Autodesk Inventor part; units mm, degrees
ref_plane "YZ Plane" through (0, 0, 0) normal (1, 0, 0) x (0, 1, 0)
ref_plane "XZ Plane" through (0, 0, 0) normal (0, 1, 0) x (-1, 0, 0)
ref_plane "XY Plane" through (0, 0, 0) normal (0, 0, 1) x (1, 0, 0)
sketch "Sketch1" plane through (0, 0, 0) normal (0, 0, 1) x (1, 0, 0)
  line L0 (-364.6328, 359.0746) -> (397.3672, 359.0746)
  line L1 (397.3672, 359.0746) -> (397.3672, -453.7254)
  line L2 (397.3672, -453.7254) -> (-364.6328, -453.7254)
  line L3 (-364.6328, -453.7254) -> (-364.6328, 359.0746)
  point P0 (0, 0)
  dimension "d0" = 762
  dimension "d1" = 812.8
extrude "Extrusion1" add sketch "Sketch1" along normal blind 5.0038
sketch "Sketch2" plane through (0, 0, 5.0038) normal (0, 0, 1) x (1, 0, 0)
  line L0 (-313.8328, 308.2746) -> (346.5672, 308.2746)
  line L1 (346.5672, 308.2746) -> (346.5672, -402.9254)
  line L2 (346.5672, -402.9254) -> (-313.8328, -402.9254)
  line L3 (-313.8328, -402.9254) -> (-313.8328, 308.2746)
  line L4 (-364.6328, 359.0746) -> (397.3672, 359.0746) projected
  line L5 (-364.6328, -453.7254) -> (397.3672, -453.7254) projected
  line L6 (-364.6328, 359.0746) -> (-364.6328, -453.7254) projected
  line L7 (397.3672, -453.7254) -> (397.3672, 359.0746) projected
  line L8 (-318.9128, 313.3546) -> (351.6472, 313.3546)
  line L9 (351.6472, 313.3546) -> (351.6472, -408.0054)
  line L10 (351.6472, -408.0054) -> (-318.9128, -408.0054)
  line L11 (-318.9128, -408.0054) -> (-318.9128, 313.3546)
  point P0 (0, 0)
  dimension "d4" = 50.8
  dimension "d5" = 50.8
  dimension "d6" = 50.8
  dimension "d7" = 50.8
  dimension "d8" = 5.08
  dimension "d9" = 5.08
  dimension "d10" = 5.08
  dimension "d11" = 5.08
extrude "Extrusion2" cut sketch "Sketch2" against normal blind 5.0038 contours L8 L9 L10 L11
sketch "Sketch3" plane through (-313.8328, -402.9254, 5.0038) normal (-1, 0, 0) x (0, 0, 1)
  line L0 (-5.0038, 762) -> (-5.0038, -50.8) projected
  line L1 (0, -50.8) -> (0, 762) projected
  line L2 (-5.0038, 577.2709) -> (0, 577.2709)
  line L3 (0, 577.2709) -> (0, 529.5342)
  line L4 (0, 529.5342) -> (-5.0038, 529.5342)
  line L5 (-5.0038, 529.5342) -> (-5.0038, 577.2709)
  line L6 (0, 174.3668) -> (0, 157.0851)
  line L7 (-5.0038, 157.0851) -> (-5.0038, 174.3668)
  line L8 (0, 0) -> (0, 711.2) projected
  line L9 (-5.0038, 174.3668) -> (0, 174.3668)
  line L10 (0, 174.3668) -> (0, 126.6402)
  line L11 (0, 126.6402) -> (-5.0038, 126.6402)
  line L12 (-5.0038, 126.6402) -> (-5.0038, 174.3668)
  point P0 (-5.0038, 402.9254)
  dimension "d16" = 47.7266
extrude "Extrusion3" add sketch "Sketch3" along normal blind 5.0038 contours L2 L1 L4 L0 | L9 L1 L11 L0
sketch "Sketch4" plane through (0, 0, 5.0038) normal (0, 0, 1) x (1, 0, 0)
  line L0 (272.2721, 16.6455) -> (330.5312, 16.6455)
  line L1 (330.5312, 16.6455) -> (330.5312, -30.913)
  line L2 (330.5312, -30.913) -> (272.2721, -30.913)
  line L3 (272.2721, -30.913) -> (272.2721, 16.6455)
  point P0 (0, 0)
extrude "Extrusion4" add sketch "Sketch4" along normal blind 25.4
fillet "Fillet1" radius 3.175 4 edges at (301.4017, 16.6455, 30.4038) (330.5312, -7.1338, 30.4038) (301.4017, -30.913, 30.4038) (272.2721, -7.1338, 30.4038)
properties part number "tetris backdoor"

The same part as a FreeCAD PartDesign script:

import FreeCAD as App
import Part
import Sketcher
from FreeCAD import Vector
Q = App.Units.Quantity


def edges_at(feature, points):
    """Names of the edges that pass closest to the given points."""
    edges = feature.Shape.Edges
    near = lambda p: min(range(len(edges)), key=lambda i: edges[i].distToShape(Part.Vertex(*p))[0])
    return sorted({f"Edge{near(p) + 1}" for p in points})

doc = App.newDocument("Part")
body = doc.addObject("PartDesign::Body", "Body")
body.AllowCompound = True

sketch1 = body.newObject("Sketcher::SketchObject", "Sketch")
sketch1.AttachmentSupport = (doc.getObject("XY_Plane"), [""])
sketch1.MapMode = "FlatFace"
sketch1.addGeometry([
    Part.LineSegment(Vector(397, 359, 0), Vector(-365, 359, 0)),
    Part.LineSegment(Vector(-365, 359, 0), Vector(-365, -454, 0)),
    Part.LineSegment(Vector(-365, -454, 0), Vector(397, -454, 0)),
    Part.LineSegment(Vector(397, -454, 0), Vector(397, 359, 0)),
], False)
sketch1.addConstraint([
    Sketcher.Constraint("Coincident", 0, 2, 1, 1),
    Sketcher.Constraint("Coincident", 1, 2, 2, 1),
    Sketcher.Constraint("Coincident", 2, 2, 3, 1),
    Sketcher.Constraint("Coincident", 3, 2, 0, 1),
    Sketcher.Constraint("Horizontal", 0),
    Sketcher.Constraint("Vertical", 1),
    Sketcher.Constraint("Horizontal", 2),
    Sketcher.Constraint("Vertical", 3),
    Sketcher.Constraint("DistanceX", 0, 2, 0, 1, Q("30 in")),
    Sketcher.Constraint("DistanceY", 1, 2, 1, 1, Q("32 in")),
    Sketcher.Constraint("DistanceY", -1, 1, 0, 2, Q("14.1368 in")),
    Sketcher.Constraint("DistanceX", 0, 2, -1, 1, 364.6328),
])
pad1 = body.newObject("PartDesign::Pad", "Pad")
pad1.Profile = sketch1
pad1.Length = Q("0.197 in")

sketch2 = body.newObject("Sketcher::SketchObject", "Sketch001")
sketch2.AttachmentSupport = (doc.getObject("XY_Plane"), [""])
sketch2.MapMode = "FlatFace"
sketch2.AttachmentOffset = App.Placement(Vector(0, 0, 0.197 * 25.4), App.Rotation())
sketch2.addGeometry([
    Part.LineSegment(Vector(352, 313, 0), Vector(-319, 313, 0)),
    Part.LineSegment(Vector(-319, 313, 0), Vector(-319, -408, 0)),
    Part.LineSegment(Vector(-319, -408, 0), Vector(352, -408, 0)),
    Part.LineSegment(Vector(352, -408, 0), Vector(352, 313, 0)),
    Part.LineSegment(Vector(-314, -403, 0), Vector(-314, 308, 0)),
    Part.LineSegment(Vector(-314, 308, 0), Vector(347, 308, 0)),
    Part.LineSegment(Vector(347, 308, 0), Vector(347, -403, 0)),
    Part.LineSegment(Vector(347, -403, 0), Vector(-314, -403, 0)),
], False)
sketch2.addConstraint([
    Sketcher.Constraint("Coincident", 0, 2, 1, 1),
    Sketcher.Constraint("Coincident", 1, 2, 2, 1),
    Sketcher.Constraint("Coincident", 2, 2, 3, 1),
    Sketcher.Constraint("Coincident", 3, 2, 0, 1),
    Sketcher.Constraint("Coincident", 4, 2, 5, 1),
    Sketcher.Constraint("Coincident", 5, 2, 6, 1),
    Sketcher.Constraint("Coincident", 6, 2, 7, 1),
    Sketcher.Constraint("Coincident", 7, 2, 4, 1),
    Sketcher.Constraint("Horizontal", 0),
    Sketcher.Constraint("Vertical", 1),
    Sketcher.Constraint("Horizontal", 2),
    Sketcher.Constraint("Vertical", 3),
    Sketcher.Constraint("Vertical", 4),
    Sketcher.Constraint("Horizontal", 5),
    Sketcher.Constraint("Vertical", 6),
    Sketcher.Constraint("Horizontal", 7),
    Sketcher.Constraint("DistanceX", 0, 2, 4, 2, Q("0.2 in")),
    Sketcher.Constraint("DistanceY", 4, 2, 0, 2, Q("0.2 in")),
    Sketcher.Constraint("DistanceX", 5, 2, 3, 2, Q("0.2 in")),
    Sketcher.Constraint("DistanceY", 2, 2, 6, 2, Q("0.2 in")),
    Sketcher.Constraint("DistanceX", 5, 1, 5, 2, Q("26 in")),
    Sketcher.Constraint("DistanceY", 4, 1, 4, 2, Q("28 in")),
    Sketcher.Constraint("DistanceY", -1, 1, 0, 2, Q("12.3368 in")),
    Sketcher.Constraint("DistanceX", 0, 2, -1, 1, 318.9128),
])
pocket1 = body.newObject("PartDesign::Pocket", "Pocket")
pocket1.Profile = sketch2
pocket1.Length = Q("0.197 in")

sketch3 = body.newObject("Sketcher::SketchObject", "Sketch002")
sketch3.AttachmentSupport = (doc.getObject("YZ_Plane"), [""])
sketch3.MapMode = "FlatFace"
sketch3.AttachmentOffset = App.Placement(Vector(0, 0, -313.8328), App.Rotation())
sketch3.addGeometry([
    Part.LineSegment(Vector(174, 5, 0), Vector(174, 0, 0)),
    Part.LineSegment(Vector(174, 0, 0), Vector(127, 0, 0)),
    Part.LineSegment(Vector(127, 0, 0), Vector(127, 5, 0)),
    Part.LineSegment(Vector(127, 5, 0), Vector(174, 5, 0)),
    Part.LineSegment(Vector(-229, 5, 0), Vector(-229, 0, 0)),
    Part.LineSegment(Vector(-229, 0, 0), Vector(-276, 0, 0)),
    Part.LineSegment(Vector(-276, 0, 0), Vector(-276, 5, 0)),
    Part.LineSegment(Vector(-276, 5, 0), Vector(-229, 5, 0)),
], False)
sketch3.addConstraint([
    Sketcher.Constraint("Coincident", 0, 2, 1, 1),
    Sketcher.Constraint("Coincident", 1, 2, 2, 1),
    Sketcher.Constraint("Coincident", 2, 2, 3, 1),
    Sketcher.Constraint("Coincident", 3, 2, 0, 1),
    Sketcher.Constraint("Coincident", 4, 2, 5, 1),
    Sketcher.Constraint("Coincident", 5, 2, 6, 1),
    Sketcher.Constraint("Coincident", 6, 2, 7, 1),
    Sketcher.Constraint("Coincident", 7, 2, 4, 1),
    Sketcher.Constraint("Vertical", 0),
    Sketcher.Constraint("Horizontal", 1),
    Sketcher.Constraint("Vertical", 2),
    Sketcher.Constraint("Horizontal", 3),
    Sketcher.Constraint("Vertical", 4),
    Sketcher.Constraint("Horizontal", 5),
    Sketcher.Constraint("Vertical", 6),
    Sketcher.Constraint("Horizontal", 7),
    Sketcher.Constraint("PointOnObject", 0, 2, -1),
    Sketcher.Constraint("PointOnObject", 4, 2, -1),
    Sketcher.Constraint("Horizontal", 3, 2, 6, 2),
    Sketcher.Constraint("DistanceX", 5, 2, 5, 1, Q("1.879 in")),
    Sketcher.Constraint("DistanceY", 0, 2, 0, 1, Q("0.197 in")),
    Sketcher.Constraint("DistanceX", 1, 2, 1, 1, Q("1.8794 in")),
    Sketcher.Constraint("DistanceX", -1, 1, 0, 2, Q("6.864 in")),
    Sketcher.Constraint("DistanceX", 4, 2, -1, 1, 228.5586),
])
pad2 = body.newObject("PartDesign::Pad", "Pad001")
pad2.Profile = sketch3
pad2.Length = Q("0.197 in")
pad2.Reversed = True

sketch4 = body.newObject("Sketcher::SketchObject", "Sketch003")
sketch4.AttachmentSupport = (doc.getObject("XY_Plane"), [""])
sketch4.MapMode = "FlatFace"
sketch4.AttachmentOffset = App.Placement(Vector(0, 0, 0.197 * 25.4), App.Rotation())
sketch4.addGeometry([
    Part.LineSegment(Vector(331, 17, 0), Vector(272, 17, 0)),
    Part.LineSegment(Vector(272, 17, 0), Vector(272, -31, 0)),
    Part.LineSegment(Vector(272, -31, 0), Vector(331, -31, 0)),
    Part.LineSegment(Vector(331, -31, 0), Vector(331, 17, 0)),
], False)
sketch4.addConstraint([
    Sketcher.Constraint("Coincident", 0, 2, 1, 1),
    Sketcher.Constraint("Coincident", 1, 2, 2, 1),
    Sketcher.Constraint("Coincident", 2, 2, 3, 1),
    Sketcher.Constraint("Coincident", 3, 2, 0, 1),
    Sketcher.Constraint("Horizontal", 0),
    Sketcher.Constraint("Vertical", 1),
    Sketcher.Constraint("Horizontal", 2),
    Sketcher.Constraint("Vertical", 3),
    Sketcher.Constraint("DistanceX", 0, 2, 0, 1, 58.259),
    Sketcher.Constraint("DistanceY", 1, 2, 1, 1, 47.5585),
    Sketcher.Constraint("DistanceX", -1, 1, 0, 2, 272.272),
    Sketcher.Constraint("DistanceY", -1, 1, 0, 2, 16.6455),
])
pad3 = body.newObject("PartDesign::Pad", "Pad002")
pad3.Profile = sketch4
pad3.Length = Q("1 in")
doc.recompute()

fillet = body.newObject("PartDesign::Fillet", "Fillet")
fillet.Base = (pad3, edges_at(pad3, [
    (301.402, 16.645, 30.404),
    (330.531, -7.134, 30.404),
    (301.402, -30.913, 30.404),
    (272.272, -7.134, 30.404),
]))
fillet.Radius = Q("0.125 in")

doc.recompute()
